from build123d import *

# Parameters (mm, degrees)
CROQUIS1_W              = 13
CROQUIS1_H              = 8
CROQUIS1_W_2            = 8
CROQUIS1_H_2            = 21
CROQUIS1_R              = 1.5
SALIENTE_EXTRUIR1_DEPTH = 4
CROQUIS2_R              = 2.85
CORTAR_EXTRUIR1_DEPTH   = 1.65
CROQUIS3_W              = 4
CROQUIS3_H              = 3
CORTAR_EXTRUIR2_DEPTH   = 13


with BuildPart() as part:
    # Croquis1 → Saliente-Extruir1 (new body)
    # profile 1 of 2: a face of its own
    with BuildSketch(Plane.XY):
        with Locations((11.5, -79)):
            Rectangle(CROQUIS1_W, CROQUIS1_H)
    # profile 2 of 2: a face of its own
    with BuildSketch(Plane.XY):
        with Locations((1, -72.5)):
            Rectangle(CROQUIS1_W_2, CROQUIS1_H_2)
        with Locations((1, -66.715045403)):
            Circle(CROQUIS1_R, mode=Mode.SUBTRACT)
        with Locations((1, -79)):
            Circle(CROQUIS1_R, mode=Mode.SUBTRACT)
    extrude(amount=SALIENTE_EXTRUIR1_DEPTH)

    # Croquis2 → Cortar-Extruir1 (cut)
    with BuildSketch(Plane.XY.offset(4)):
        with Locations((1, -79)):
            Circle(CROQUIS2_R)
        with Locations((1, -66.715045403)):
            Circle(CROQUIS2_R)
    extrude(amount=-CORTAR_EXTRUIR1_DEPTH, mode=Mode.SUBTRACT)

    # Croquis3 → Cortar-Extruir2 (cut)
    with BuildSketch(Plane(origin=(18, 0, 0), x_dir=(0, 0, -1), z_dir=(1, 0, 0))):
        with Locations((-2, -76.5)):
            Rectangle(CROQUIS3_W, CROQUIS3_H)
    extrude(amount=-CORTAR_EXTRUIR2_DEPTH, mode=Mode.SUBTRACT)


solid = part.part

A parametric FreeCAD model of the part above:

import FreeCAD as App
import Part
import Sketcher
from FreeCAD import Vector

doc = App.newDocument("Part")
body = doc.addObject("PartDesign::Body", "Body")

# Sketch on XY plane
sketch1 = body.newObject("Sketcher::SketchObject", "Sketch")
sketch1.AttachmentSupport = (doc.getObject("XY_Plane"), [""])
sketch1.MapMode = "FlatFace"
sketch1.addGeometry(Part.LineSegment(Vector(18, -83, 0), Vector(18, -75, 0)), False)
sketch1.addGeometry(Part.LineSegment(Vector(18, -75, 0), Vector(5, -75, 0)), False)
sketch1.addGeometry(Part.LineSegment(Vector(5, -75, 0), Vector(5, -62, 0)), False)
sketch1.addGeometry(Part.LineSegment(Vector(5, -62, 0), Vector(-3, -62, 0)), False)
sketch1.addGeometry(Part.LineSegment(Vector(-3, -62, 0), Vector(-3, -83, 0)), False)
sketch1.addGeometry(Part.LineSegment(Vector(-3, -83, 0), Vector(18, -83, 0)), False)
sketch1.addGeometry(Part.Circle(Vector(1, -66.715045, 0), Vector(0, 0, 1), 1.5), False)
sketch1.addGeometry(Part.Circle(Vector(1, -79, 0), Vector(0, 0, 1), 1.5), False)
sketch1.addConstraint(Sketcher.Constraint("Coincident", 0, 2, 1, 1))
sketch1.addConstraint(Sketcher.Constraint("Coincident", 1, 2, 2, 1))
sketch1.addConstraint(Sketcher.Constraint("Coincident", 2, 2, 3, 1))
sketch1.addConstraint(Sketcher.Constraint("Coincident", 3, 2, 4, 1))
sketch1.addConstraint(Sketcher.Constraint("Coincident", 4, 2, 5, 1))
sketch1.addConstraint(Sketcher.Constraint("Coincident", 5, 2, 0, 1))
sketch1.addConstraint(Sketcher.Constraint("Vertical", 0))
sketch1.addConstraint(Sketcher.Constraint("Horizontal", 1))
sketch1.addConstraint(Sketcher.Constraint("Vertical", 2))
sketch1.addConstraint(Sketcher.Constraint("Horizontal", 3))
sketch1.addConstraint(Sketcher.Constraint("Vertical", 4))
sketch1.addConstraint(Sketcher.Constraint("Horizontal", 5))
sketch1.addConstraint(Sketcher.Constraint("Equal", 6, 7))
sketch1.addConstraint(Sketcher.Constraint("Vertical", 6, 3, 7, 3))
sketch1.addConstraint(Sketcher.Constraint("Equal", 3, 0))
sketch1.addConstraint(Sketcher.Constraint("Equal", 1, 2))
sketch1.addConstraint(Sketcher.Constraint("Diameter", 6, 3.0))
sketch1.addConstraint(Sketcher.Constraint("DistanceX", 1, 2, 1, 1, 13.0))
sketch1.addConstraint(Sketcher.Constraint("DistanceX", 3, 2, 3, 1, 8.0))
sketch1.addConstraint(Sketcher.Constraint("DistanceX", -1, 1, 6, 3, 1.0))
sketch1.addConstraint(Sketcher.Constraint("DistanceY", 7, 3, -1, 1, 79.0))
sketch1.addConstraint(Sketcher.Constraint("DistanceX", -1, 1, 0, 2, 18.0))
sketch1.addConstraint(Sketcher.Constraint("DistanceY", 0, 2, -1, 1, 75.0))
sketch1.addConstraint(Sketcher.Constraint("DistanceY", 6, 3, -1, 1, 66.715045))
pad1 = body.newObject("PartDesign::Pad", "Pad")
pad1.Profile = sketch1
pad1.Length = 4

# Sketch on XY plane
sketch2 = body.newObject("Sketcher::SketchObject", "Sketch001")
sketch2.AttachmentSupport = (doc.getObject("XY_Plane"), [""])
sketch2.MapMode = "FlatFace"
sketch2.AttachmentOffset = App.Placement(Vector(0, 0, 4), App.Rotation())
sketch2.addGeometry(Part.Circle(Vector(1, -79, 0), Vector(0, 0, 1), 2.85), False)
sketch2.addGeometry(Part.Circle(Vector(1, -66.715045, 0), Vector(0, 0, 1), 2.85), False)
sketch2.addConstraint(Sketcher.Constraint("Equal", 0, 1))
sketch2.addConstraint(Sketcher.Constraint("Vertical", 0, 3, 1, 3))
sketch2.addConstraint(Sketcher.Constraint("Diameter", 0, 5.7))
sketch2.addConstraint(Sketcher.Constraint("DistanceX", -1, 1, 0, 3, 1.0))
sketch2.addConstraint(Sketcher.Constraint("DistanceY", 0, 3, -1, 1, 79.0))
sketch2.addConstraint(Sketcher.Constraint("DistanceY", 1, 3, -1, 1, 66.715045))
pocket1 = body.newObject("PartDesign::Pocket", "Pocket")
pocket1.Profile = sketch2
pocket1.Length = 1.65

# Sketch on YZ plane
sketch3 = body.newObject("Sketcher::SketchObject", "Sketch002")
sketch3.AttachmentSupport = (doc.getObject("YZ_Plane"), [""])
sketch3.MapMode = "FlatFace"
sketch3.AttachmentOffset = App.Placement(Vector(0, 0, 18), App.Rotation())
sketch3.addGeometry(Part.LineSegment(Vector(-75, 4, 0), Vector(-78, 4, 0)), False)
sketch3.addGeometry(Part.LineSegment(Vector(-78, 4, 0), Vector(-78, 0, 0)), False)
sketch3.addGeometry(Part.LineSegment(Vector(-78, 0, 0), Vector(-75, 0, 0)), False)
sketch3.addGeometry(Part.LineSegment(Vector(-75, 0, 0), Vector(-75, 4, 0)), False)
sketch3.addConstraint(Sketcher.Constraint("Coincident", 0, 2, 1, 1))
sketch3.addConstraint(Sketcher.Constraint("Coincident", 1, 2, 2, 1))
sketch3.addConstraint(Sketcher.Constraint("Coincident", 2, 2, 3, 1))
sketch3.addConstraint(Sketcher.Constraint("Coincident", 3, 2, 0, 1))
sketch3.addConstraint(Sketcher.Constraint("Horizontal", 0))
sketch3.addConstraint(Sketcher.Constraint("Vertical", 1))
sketch3.addConstraint(Sketcher.Constraint("Horizontal", 2))
sketch3.addConstraint(Sketcher.Constraint("Vertical", 3))
sketch3.addConstraint(Sketcher.Constraint("PointOnObject", 1, 2, -1))
sketch3.addConstraint(Sketcher.Constraint("DistanceX", 0, 2, 0, 1, 3.0))
sketch3.addConstraint(Sketcher.Constraint("DistanceY", 1, 2, 1, 1, 4.0))
sketch3.addConstraint(Sketcher.Constraint("DistanceX", 0, 2, -1, 1, 78.0))
pocket2 = body.newObject("PartDesign::Pocket", "Pocket001")
pocket2.Profile = sketch3
pocket2.Length = 13

doc.recompute()
